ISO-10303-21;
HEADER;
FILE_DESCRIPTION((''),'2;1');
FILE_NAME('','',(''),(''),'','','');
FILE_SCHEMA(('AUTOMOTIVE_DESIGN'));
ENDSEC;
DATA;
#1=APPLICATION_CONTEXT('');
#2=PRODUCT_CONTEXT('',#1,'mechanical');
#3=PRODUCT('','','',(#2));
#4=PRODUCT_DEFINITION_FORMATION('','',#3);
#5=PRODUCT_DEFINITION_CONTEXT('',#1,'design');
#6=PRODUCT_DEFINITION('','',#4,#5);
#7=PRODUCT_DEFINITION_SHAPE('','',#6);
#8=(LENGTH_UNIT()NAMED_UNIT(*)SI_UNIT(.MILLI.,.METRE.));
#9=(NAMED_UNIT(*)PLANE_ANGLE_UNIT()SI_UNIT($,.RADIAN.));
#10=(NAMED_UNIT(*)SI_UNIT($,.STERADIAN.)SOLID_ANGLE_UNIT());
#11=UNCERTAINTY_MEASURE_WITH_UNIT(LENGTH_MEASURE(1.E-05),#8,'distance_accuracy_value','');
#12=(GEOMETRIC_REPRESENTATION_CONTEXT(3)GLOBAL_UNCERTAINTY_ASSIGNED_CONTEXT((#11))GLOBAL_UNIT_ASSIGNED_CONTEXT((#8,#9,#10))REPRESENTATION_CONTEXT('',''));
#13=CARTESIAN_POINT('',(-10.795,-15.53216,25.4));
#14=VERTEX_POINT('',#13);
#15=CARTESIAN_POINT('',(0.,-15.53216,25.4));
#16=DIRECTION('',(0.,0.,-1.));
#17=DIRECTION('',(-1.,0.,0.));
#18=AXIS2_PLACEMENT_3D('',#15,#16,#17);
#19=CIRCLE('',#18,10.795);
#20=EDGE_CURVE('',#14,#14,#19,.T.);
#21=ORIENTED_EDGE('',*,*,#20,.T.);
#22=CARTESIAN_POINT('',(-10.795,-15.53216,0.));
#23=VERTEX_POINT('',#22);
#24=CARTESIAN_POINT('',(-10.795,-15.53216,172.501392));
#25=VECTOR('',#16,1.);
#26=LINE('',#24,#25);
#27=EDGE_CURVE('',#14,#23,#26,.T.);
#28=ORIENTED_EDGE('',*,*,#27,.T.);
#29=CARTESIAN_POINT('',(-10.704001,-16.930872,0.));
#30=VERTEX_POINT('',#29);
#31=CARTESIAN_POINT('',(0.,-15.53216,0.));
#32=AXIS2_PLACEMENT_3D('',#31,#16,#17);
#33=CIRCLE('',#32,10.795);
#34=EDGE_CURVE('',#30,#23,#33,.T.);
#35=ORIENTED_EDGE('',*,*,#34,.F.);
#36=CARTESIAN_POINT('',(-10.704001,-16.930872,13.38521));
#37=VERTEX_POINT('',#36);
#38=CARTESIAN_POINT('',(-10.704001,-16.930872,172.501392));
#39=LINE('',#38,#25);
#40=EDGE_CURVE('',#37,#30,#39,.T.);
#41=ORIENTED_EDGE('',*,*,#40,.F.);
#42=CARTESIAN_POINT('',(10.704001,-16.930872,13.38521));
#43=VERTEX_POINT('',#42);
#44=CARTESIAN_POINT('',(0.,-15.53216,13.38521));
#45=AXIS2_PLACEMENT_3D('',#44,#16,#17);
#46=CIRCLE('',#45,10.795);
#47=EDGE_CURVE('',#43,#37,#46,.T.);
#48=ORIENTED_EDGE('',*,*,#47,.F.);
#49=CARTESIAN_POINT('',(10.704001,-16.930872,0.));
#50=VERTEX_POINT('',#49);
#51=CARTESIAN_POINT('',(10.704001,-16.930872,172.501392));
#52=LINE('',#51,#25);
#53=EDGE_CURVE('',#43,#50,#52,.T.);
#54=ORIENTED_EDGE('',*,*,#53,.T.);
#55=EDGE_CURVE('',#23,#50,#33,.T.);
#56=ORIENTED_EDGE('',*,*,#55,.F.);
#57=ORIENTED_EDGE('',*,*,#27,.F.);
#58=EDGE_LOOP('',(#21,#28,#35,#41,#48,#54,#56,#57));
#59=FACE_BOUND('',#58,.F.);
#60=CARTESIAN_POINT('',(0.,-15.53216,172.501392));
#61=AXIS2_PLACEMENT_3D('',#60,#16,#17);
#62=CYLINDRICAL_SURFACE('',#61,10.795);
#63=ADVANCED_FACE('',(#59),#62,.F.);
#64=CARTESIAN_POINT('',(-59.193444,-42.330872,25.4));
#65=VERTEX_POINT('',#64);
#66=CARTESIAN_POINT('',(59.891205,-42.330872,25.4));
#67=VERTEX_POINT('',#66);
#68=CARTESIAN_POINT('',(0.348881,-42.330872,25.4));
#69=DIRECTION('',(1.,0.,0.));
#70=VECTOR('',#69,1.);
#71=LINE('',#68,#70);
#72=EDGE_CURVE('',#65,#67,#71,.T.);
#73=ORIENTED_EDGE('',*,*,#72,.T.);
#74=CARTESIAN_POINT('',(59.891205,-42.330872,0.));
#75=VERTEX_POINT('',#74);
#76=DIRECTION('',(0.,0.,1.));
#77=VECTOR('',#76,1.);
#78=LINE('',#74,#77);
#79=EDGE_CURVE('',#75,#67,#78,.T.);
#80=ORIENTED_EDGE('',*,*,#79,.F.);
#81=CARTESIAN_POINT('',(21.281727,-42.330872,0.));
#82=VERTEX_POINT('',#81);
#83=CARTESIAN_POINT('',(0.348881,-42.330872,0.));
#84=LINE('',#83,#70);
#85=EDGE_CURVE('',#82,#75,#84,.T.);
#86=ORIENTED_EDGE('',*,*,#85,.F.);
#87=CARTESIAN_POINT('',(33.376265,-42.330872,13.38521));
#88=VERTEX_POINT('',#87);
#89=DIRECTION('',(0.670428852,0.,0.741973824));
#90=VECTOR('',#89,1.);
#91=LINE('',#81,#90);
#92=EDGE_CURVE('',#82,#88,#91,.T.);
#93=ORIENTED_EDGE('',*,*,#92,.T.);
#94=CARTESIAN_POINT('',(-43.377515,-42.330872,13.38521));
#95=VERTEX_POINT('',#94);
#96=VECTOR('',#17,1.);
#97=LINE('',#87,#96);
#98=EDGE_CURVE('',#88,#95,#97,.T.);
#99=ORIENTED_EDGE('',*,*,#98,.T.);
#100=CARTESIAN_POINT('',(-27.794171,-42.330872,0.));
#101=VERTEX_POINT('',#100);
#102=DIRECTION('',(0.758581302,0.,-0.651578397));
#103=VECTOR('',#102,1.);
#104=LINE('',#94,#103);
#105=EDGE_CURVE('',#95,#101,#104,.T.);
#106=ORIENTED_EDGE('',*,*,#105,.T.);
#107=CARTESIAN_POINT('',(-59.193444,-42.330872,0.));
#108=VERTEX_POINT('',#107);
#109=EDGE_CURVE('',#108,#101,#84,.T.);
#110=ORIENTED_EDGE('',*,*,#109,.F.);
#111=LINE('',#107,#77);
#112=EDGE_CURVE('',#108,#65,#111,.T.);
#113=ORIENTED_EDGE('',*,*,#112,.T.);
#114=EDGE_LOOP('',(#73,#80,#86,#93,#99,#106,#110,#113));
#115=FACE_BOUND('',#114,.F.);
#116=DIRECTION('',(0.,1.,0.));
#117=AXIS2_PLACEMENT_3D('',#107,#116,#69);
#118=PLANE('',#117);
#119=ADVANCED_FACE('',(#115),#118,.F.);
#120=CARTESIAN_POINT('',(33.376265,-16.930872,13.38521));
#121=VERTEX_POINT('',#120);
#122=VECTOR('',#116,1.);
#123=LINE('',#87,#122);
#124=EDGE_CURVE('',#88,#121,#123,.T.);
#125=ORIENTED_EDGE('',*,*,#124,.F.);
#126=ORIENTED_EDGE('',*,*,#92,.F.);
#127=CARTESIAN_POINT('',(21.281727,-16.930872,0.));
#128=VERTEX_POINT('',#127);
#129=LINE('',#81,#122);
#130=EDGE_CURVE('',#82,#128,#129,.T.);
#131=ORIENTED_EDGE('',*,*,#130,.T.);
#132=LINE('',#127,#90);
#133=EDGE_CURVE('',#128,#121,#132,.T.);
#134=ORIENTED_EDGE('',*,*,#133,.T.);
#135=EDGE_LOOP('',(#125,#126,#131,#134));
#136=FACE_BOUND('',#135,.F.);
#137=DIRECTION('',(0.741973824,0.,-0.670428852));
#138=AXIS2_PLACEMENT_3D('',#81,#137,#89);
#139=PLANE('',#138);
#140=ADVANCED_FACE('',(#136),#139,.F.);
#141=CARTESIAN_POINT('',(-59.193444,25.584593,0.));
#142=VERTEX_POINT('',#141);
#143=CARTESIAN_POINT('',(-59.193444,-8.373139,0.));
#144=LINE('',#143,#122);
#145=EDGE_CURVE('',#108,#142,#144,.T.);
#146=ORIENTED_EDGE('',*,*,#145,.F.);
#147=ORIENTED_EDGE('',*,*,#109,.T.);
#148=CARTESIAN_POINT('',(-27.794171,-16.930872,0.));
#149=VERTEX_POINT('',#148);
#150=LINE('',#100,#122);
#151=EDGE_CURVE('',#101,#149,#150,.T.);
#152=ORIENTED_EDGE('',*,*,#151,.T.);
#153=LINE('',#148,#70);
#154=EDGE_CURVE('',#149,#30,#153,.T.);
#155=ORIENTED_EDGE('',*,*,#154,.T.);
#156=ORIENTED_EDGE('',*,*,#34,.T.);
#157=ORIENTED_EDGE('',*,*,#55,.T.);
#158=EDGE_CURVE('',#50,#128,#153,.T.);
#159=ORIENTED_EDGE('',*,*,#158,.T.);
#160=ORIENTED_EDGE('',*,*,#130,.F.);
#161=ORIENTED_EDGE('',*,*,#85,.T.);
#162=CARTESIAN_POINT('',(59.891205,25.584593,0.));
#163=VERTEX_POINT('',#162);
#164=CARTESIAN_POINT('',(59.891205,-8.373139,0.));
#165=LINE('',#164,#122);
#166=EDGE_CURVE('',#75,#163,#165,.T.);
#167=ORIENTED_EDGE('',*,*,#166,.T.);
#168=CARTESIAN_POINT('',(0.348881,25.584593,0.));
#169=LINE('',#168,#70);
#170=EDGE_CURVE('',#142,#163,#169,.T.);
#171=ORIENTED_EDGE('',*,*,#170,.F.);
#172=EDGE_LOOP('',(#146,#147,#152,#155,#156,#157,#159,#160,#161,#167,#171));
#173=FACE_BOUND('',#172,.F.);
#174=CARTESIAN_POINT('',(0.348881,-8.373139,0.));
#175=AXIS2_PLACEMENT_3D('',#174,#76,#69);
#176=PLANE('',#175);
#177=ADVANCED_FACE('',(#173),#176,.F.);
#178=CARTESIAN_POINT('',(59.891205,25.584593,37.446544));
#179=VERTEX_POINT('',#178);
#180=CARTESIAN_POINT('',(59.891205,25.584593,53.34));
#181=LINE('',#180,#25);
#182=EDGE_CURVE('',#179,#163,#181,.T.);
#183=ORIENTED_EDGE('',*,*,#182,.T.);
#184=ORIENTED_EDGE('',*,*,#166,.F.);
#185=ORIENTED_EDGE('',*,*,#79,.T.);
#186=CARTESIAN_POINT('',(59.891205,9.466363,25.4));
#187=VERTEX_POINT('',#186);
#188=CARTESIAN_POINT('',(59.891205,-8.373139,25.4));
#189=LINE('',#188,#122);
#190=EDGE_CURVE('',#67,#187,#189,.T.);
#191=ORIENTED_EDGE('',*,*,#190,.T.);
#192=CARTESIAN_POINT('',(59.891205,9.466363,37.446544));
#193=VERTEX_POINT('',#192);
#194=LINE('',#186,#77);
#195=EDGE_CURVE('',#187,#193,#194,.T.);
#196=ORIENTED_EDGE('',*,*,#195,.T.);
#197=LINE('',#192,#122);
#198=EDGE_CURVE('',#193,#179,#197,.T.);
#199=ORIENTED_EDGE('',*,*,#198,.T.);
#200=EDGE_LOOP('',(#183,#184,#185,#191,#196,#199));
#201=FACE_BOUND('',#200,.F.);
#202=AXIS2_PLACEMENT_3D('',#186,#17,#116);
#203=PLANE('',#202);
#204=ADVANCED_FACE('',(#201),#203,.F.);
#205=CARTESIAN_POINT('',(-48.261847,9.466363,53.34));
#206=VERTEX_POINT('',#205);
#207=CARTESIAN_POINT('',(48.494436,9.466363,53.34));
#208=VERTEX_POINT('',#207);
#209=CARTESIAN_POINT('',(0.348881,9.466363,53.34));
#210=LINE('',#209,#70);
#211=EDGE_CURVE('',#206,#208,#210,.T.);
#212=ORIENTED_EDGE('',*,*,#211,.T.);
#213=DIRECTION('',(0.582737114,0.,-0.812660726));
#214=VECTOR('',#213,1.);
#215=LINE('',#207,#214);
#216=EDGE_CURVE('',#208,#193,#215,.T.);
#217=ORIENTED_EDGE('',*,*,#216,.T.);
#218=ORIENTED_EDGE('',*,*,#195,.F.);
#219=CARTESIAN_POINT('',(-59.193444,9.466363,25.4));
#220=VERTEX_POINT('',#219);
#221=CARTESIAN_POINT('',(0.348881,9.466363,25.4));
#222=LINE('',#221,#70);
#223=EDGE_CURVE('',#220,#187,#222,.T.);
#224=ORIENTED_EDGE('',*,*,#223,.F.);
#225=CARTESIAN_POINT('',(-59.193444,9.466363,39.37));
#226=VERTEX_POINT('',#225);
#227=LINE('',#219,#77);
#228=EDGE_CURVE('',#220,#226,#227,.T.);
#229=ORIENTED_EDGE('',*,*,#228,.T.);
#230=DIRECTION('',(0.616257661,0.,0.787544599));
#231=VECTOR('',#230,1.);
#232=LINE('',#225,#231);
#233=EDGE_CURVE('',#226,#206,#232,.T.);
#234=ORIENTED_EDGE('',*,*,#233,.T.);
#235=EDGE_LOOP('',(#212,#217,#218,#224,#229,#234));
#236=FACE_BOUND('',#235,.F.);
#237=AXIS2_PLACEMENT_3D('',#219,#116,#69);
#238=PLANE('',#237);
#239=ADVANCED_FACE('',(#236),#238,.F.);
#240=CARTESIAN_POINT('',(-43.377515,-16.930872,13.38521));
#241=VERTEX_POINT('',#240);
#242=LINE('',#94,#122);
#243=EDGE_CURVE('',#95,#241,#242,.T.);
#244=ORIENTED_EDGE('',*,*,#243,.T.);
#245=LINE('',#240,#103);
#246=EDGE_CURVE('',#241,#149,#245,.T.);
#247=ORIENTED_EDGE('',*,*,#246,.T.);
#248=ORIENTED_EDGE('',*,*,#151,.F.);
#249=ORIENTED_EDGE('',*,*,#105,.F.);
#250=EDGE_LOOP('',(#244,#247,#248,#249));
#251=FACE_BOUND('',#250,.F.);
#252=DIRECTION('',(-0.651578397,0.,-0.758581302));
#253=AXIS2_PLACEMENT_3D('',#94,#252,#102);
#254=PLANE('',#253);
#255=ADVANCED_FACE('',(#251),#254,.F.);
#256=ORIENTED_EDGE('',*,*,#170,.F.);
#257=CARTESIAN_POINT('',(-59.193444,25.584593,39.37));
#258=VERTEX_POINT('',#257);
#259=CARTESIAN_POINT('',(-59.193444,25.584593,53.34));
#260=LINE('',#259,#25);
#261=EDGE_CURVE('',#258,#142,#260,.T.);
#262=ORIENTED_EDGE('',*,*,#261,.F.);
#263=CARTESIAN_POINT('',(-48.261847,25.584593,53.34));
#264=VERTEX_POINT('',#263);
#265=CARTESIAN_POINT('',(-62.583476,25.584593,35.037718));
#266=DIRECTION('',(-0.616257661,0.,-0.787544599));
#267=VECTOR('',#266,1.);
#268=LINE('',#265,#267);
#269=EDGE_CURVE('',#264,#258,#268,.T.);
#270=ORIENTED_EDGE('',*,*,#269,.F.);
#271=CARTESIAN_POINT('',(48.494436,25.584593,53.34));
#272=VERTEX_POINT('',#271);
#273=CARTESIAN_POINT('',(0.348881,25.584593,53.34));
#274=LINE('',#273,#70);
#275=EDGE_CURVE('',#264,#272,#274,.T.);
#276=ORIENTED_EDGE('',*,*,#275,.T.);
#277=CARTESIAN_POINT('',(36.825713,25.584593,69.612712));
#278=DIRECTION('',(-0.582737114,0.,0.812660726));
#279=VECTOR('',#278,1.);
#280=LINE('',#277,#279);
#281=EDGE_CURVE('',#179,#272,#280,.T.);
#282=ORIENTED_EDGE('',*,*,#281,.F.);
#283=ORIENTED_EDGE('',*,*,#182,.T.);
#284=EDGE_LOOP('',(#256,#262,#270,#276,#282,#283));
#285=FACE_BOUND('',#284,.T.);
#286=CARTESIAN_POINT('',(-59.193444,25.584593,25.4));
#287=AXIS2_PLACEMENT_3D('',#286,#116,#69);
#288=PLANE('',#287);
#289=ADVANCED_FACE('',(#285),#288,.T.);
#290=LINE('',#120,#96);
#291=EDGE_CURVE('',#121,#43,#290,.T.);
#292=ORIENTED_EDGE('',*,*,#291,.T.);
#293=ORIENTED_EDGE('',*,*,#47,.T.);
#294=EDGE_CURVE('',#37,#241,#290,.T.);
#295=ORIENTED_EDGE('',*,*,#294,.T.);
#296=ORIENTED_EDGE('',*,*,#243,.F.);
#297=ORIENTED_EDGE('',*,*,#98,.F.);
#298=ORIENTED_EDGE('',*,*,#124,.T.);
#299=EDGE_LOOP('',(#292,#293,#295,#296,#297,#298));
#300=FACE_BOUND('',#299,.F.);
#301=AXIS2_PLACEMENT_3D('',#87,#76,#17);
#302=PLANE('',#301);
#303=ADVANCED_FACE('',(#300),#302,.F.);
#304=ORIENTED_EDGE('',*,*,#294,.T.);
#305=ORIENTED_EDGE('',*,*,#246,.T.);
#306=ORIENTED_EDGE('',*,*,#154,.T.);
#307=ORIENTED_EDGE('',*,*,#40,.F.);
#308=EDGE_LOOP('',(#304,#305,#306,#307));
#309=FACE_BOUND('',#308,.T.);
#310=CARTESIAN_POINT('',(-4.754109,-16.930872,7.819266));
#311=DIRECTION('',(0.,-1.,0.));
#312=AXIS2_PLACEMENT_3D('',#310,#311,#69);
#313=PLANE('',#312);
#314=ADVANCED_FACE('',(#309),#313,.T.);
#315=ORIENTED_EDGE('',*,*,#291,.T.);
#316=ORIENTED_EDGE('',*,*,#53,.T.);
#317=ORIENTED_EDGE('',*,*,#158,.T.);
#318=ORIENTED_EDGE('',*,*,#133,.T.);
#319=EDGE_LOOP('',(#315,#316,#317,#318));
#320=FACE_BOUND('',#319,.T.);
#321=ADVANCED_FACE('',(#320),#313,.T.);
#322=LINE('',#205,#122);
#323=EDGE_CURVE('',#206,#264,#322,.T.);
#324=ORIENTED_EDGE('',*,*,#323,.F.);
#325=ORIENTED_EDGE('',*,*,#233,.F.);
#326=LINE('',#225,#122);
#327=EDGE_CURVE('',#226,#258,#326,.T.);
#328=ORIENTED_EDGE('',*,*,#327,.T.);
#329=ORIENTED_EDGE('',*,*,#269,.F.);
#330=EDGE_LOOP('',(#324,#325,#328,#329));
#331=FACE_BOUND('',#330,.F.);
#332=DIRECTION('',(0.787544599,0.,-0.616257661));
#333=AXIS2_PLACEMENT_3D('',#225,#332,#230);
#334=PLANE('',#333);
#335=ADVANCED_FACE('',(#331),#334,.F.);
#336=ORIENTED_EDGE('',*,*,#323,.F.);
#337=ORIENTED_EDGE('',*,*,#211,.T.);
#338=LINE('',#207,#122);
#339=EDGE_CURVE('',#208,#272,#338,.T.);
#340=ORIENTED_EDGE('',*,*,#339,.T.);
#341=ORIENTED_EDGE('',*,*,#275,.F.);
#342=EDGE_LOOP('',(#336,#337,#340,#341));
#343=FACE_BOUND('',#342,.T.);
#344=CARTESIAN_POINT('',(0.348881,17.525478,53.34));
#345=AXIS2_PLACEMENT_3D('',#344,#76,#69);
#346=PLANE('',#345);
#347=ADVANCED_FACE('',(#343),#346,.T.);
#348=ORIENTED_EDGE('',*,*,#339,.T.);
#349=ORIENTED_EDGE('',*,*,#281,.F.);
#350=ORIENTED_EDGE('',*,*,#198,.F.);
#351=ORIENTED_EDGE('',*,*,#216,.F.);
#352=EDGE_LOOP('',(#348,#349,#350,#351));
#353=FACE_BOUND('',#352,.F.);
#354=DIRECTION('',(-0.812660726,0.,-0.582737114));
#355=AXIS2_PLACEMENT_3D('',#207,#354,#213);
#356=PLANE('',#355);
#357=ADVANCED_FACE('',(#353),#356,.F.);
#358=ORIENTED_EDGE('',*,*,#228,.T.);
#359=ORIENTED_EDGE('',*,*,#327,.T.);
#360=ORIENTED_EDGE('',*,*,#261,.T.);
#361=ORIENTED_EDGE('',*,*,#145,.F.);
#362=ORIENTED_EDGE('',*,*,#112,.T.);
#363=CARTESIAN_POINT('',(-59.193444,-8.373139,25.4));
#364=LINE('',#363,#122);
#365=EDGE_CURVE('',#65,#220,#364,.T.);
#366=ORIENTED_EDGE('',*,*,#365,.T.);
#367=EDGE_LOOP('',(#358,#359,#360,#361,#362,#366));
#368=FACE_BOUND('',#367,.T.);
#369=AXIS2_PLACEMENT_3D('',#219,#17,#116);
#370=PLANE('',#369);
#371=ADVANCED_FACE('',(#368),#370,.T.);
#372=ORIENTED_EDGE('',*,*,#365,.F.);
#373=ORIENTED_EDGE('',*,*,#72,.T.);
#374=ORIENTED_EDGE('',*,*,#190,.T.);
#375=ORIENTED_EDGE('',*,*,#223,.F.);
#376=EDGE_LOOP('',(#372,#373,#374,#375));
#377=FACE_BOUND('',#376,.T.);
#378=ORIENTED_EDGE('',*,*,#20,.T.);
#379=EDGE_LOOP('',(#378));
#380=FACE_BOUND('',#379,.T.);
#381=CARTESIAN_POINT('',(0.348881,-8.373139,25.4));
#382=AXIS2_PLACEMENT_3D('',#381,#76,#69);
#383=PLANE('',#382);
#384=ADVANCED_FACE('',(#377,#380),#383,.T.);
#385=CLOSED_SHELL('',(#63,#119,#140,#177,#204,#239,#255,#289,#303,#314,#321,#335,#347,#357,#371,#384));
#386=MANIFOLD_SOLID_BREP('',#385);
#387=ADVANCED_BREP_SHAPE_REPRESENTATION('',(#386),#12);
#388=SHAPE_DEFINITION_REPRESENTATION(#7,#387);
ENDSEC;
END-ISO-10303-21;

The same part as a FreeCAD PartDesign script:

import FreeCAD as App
import Part
import Sketcher
Q = App.Units.Quantity


def add_polygon(sketch, points):
    """Adds a closed chain of lines whose ends are joined by coincident constraints."""
    first, n = sketch.GeometryCount, len(points)
    for a, b in zip(points, points[1:] + points[:1]):
        sketch.addGeometry(Part.LineSegment(App.Vector(*a, 0), App.Vector(*b, 0)), False)
    for i in range(n):
        sketch.addConstraint(Sketcher.Constraint("Coincident", first + i, 2, first + (i + 1) % n, 1))

doc = App.newDocument("Part")
body = doc.addObject("PartDesign::Body", "Body")

# Sketch on XY plane
sketch1 = body.newObject("Sketcher::SketchObject", "Sketch")
sketch1.AttachmentSupport = (doc.getObject("XY_Plane"), [""])
sketch1.MapMode = "FlatFace"
add_polygon(sketch1, [(-59.193444, 25.584593), (-59.193444, -42.330872), (59.891205, -42.330872), (59.891205, 25.584593)])  # lines 0-3
sketch1.addConstraint(Sketcher.Constraint("Vertical", 0))
sketch1.addConstraint(Sketcher.Constraint("Horizontal", 1))
sketch1.addConstraint(Sketcher.Constraint("Vertical", 2))
sketch1.addConstraint(Sketcher.Constraint("Horizontal", 3))
sketch1.addConstraint(Sketcher.Constraint("DistanceX", 1, 1, 1, 2, Q("119.084649 mm")))
sketch1.addConstraint(Sketcher.Constraint("DistanceY", 0, 2, 0, 1, Q("67.915466 mm")))
sketch1.addConstraint(Sketcher.Constraint("DistanceX", 0, 2, -1, 1, Q("59.193444 mm")))
sketch1.addConstraint(Sketcher.Constraint("DistanceY", 0, 2, -1, 1, Q("42.330872 mm")))
pad1 = body.newObject("PartDesign::Pad", "Pad")
pad1.Profile = sketch1
pad1.Length = Q("1 in")

# Sketch on XZ plane
sketch2 = body.newObject("Sketcher::SketchObject", "Sketch001")
sketch2.AttachmentSupport = (doc.getObject("XZ_Plane"), [""])
sketch2.MapMode = "FlatFace"
sketch2.AttachmentOffset = App.Placement(App.Vector(0, 0, 42.330872), App.Rotation())
add_polygon(sketch2, [(-43.377515, 13.38521), (-27.794171, 0), (21.281727, 0), (33.376265, 13.38521)])  # lines 0-3
sketch2.addConstraint(Sketcher.Constraint("Horizontal", 1))
sketch2.addConstraint(Sketcher.Constraint("Horizontal", 3))
sketch2.addConstraint(Sketcher.Constraint("PointOnObject", 0, 2, -1))
sketch2.addConstraint(Sketcher.Constraint("DistanceX", 3, 2, 3, 1, Q("76.75378 mm")))
sketch2.addConstraint(Sketcher.Constraint("DistanceX", 1, 1, 1, 2, Q("49.075898 mm")))
sketch2.addConstraint(Sketcher.Constraint("DistanceX", 0, 2, -1, 1, Q("27.794171 mm")))
sketch2.addConstraint(Sketcher.Constraint("DistanceY", -1, 1, 2, 2, Q("13.38521 mm")))
sketch2.addConstraint(Sketcher.Constraint("DistanceX", 1, 2, 2, 2, Q("12.094539 mm")))
pocket1 = body.newObject("PartDesign::Pocket", "Pocket")
pocket1.Profile = sketch2
pocket1.Length = Q("1 in")

# Sketch on XY plane
sketch3 = body.newObject("Sketcher::SketchObject", "Sketch002")
sketch3.AttachmentSupport = (doc.getObject("XY_Plane"), [""])
sketch3.MapMode = "FlatFace"
sketch3.AttachmentOffset = App.Placement(App.Vector(0, 0, 1 * 25.4), App.Rotation())
add_polygon(sketch3, [(-59.193444, 25.584593), (-59.193444, 9.466363), (59.891205, 9.466363), (59.891205, 25.584593)])  # lines 0-3
sketch3.addConstraint(Sketcher.Constraint("Vertical", 0))
sketch3.addConstraint(Sketcher.Constraint("Horizontal", 1))
sketch3.addConstraint(Sketcher.Constraint("Vertical", 2))
sketch3.addConstraint(Sketcher.Constraint("Horizontal", 3))
sketch3.addConstraint(Sketcher.Constraint("DistanceX", 1, 1, 1, 2, Q("119.084649 mm")))
sketch3.addConstraint(Sketcher.Constraint("DistanceY", 0, 2, 0, 1, Q("16.11823 mm")))
sketch3.addConstraint(Sketcher.Constraint("DistanceX", 0, 2, -1, 1, Q("59.193444 mm")))
sketch3.addConstraint(Sketcher.Constraint("DistanceY", -1, 1, 0, 2, Q("9.466363 mm")))
pad2 = body.newObject("PartDesign::Pad", "Pad001")
pad2.Profile = sketch3
pad2.Length = Q("1.1 in")

# Sketch on XZ plane
sketch4 = body.newObject("Sketcher::SketchObject", "Sketch003")
sketch4.AttachmentSupport = (doc.getObject("XZ_Plane"), [""])
sketch4.MapMode = "FlatFace"
sketch4.AttachmentOffset = App.Placement(App.Vector(0, 0, -9.466363), App.Rotation())
add_polygon(sketch4, [(-59.193444, 39.37), (-48.261847, 53.34), (-59.193444, 53.34)])  # lines 0-2
sketch4.addConstraint(Sketcher.Constraint("Horizontal", 1))
sketch4.addConstraint(Sketcher.Constraint("Vertical", 2))
sketch4.addConstraint(Sketcher.Constraint("DistanceY", 2, 2, 2, 1, Q("0.55 in")))
sketch4.addConstraint(Sketcher.Constraint("DistanceY", -1, 1, 0, 2, Q("2.1 in")))
sketch4.addConstraint(Sketcher.Constraint("DistanceX", 1, 2, 1, 1, Q("10.931596 mm")))
sketch4.addConstraint(Sketcher.Constraint("DistanceX", 0, 2, -1, 1, Q("48.261847 mm")))
pocket2 = body.newObject("PartDesign::Pocket", "Pocket001")
pocket2.Profile = sketch4
pocket2.Length = Q("1 in")

# Sketch on XZ plane
sketch5 = body.newObject("Sketcher::SketchObject", "Sketch004")
sketch5.AttachmentSupport = (doc.getObject("XZ_Plane"), [""])
sketch5.MapMode = "FlatFace"
sketch5.AttachmentOffset = App.Placement(App.Vector(0, 0, -9.466363), App.Rotation())
add_polygon(sketch5, [(59.891205, 53.34), (48.494436, 53.34), (59.891205, 37.446544)])  # lines 0-2
sketch5.addConstraint(Sketcher.Constraint("Horizontal", 0))
sketch5.addConstraint(Sketcher.Constraint("Vertical", 2))
sketch5.addConstraint(Sketcher.Constraint("DistanceY", -1, 1, 0, 2, Q("2.1 in")))
sketch5.addConstraint(Sketcher.Constraint("DistanceX", 0, 2, 0, 1, Q("11.396769 mm")))
sketch5.addConstraint(Sketcher.Constraint("Distance", 1, Q("19.557308 mm")))
sketch5.addConstraint(Sketcher.Constraint("DistanceX", -1, 1, 0, 2, Q("48.494436 mm")))
pocket3 = body.newObject("PartDesign::Pocket", "Pocket002")
pocket3.Profile = sketch5
pocket3.Length = Q("1 in")

# Sketch on XY plane
sketch6 = body.newObject("Sketcher::SketchObject", "Sketch005")
sketch6.AttachmentSupport = (doc.getObject("XY_Plane"), [""])
sketch6.MapMode = "FlatFace"
sketch6.AttachmentOffset = App.Placement(App.Vector(0, 0, 1 * 25.4), App.Rotation())
sketch6.addGeometry(Part.Circle(App.Vector(0, -15.53216, 0), App.Vector(0, 0, 1), 10.795), False)
sketch6.addConstraint(Sketcher.Constraint("PointOnObject", 0, 3, -2))
sketch6.addConstraint(Sketcher.Constraint("Diameter", 0, Q("0.85 in")))
sketch6.addConstraint(Sketcher.Constraint("DistanceY", 0, 3, -1, 1, Q("15.53216 mm")))
doc.recompute()
hole = body.newObject("PartDesign::Hole", "Hole")
hole.Profile = sketch6
hole.ThreadType = "None"
hole.Diameter = Q("0.85 in")
hole.DepthType = "ThroughAll"

doc.recompute()
